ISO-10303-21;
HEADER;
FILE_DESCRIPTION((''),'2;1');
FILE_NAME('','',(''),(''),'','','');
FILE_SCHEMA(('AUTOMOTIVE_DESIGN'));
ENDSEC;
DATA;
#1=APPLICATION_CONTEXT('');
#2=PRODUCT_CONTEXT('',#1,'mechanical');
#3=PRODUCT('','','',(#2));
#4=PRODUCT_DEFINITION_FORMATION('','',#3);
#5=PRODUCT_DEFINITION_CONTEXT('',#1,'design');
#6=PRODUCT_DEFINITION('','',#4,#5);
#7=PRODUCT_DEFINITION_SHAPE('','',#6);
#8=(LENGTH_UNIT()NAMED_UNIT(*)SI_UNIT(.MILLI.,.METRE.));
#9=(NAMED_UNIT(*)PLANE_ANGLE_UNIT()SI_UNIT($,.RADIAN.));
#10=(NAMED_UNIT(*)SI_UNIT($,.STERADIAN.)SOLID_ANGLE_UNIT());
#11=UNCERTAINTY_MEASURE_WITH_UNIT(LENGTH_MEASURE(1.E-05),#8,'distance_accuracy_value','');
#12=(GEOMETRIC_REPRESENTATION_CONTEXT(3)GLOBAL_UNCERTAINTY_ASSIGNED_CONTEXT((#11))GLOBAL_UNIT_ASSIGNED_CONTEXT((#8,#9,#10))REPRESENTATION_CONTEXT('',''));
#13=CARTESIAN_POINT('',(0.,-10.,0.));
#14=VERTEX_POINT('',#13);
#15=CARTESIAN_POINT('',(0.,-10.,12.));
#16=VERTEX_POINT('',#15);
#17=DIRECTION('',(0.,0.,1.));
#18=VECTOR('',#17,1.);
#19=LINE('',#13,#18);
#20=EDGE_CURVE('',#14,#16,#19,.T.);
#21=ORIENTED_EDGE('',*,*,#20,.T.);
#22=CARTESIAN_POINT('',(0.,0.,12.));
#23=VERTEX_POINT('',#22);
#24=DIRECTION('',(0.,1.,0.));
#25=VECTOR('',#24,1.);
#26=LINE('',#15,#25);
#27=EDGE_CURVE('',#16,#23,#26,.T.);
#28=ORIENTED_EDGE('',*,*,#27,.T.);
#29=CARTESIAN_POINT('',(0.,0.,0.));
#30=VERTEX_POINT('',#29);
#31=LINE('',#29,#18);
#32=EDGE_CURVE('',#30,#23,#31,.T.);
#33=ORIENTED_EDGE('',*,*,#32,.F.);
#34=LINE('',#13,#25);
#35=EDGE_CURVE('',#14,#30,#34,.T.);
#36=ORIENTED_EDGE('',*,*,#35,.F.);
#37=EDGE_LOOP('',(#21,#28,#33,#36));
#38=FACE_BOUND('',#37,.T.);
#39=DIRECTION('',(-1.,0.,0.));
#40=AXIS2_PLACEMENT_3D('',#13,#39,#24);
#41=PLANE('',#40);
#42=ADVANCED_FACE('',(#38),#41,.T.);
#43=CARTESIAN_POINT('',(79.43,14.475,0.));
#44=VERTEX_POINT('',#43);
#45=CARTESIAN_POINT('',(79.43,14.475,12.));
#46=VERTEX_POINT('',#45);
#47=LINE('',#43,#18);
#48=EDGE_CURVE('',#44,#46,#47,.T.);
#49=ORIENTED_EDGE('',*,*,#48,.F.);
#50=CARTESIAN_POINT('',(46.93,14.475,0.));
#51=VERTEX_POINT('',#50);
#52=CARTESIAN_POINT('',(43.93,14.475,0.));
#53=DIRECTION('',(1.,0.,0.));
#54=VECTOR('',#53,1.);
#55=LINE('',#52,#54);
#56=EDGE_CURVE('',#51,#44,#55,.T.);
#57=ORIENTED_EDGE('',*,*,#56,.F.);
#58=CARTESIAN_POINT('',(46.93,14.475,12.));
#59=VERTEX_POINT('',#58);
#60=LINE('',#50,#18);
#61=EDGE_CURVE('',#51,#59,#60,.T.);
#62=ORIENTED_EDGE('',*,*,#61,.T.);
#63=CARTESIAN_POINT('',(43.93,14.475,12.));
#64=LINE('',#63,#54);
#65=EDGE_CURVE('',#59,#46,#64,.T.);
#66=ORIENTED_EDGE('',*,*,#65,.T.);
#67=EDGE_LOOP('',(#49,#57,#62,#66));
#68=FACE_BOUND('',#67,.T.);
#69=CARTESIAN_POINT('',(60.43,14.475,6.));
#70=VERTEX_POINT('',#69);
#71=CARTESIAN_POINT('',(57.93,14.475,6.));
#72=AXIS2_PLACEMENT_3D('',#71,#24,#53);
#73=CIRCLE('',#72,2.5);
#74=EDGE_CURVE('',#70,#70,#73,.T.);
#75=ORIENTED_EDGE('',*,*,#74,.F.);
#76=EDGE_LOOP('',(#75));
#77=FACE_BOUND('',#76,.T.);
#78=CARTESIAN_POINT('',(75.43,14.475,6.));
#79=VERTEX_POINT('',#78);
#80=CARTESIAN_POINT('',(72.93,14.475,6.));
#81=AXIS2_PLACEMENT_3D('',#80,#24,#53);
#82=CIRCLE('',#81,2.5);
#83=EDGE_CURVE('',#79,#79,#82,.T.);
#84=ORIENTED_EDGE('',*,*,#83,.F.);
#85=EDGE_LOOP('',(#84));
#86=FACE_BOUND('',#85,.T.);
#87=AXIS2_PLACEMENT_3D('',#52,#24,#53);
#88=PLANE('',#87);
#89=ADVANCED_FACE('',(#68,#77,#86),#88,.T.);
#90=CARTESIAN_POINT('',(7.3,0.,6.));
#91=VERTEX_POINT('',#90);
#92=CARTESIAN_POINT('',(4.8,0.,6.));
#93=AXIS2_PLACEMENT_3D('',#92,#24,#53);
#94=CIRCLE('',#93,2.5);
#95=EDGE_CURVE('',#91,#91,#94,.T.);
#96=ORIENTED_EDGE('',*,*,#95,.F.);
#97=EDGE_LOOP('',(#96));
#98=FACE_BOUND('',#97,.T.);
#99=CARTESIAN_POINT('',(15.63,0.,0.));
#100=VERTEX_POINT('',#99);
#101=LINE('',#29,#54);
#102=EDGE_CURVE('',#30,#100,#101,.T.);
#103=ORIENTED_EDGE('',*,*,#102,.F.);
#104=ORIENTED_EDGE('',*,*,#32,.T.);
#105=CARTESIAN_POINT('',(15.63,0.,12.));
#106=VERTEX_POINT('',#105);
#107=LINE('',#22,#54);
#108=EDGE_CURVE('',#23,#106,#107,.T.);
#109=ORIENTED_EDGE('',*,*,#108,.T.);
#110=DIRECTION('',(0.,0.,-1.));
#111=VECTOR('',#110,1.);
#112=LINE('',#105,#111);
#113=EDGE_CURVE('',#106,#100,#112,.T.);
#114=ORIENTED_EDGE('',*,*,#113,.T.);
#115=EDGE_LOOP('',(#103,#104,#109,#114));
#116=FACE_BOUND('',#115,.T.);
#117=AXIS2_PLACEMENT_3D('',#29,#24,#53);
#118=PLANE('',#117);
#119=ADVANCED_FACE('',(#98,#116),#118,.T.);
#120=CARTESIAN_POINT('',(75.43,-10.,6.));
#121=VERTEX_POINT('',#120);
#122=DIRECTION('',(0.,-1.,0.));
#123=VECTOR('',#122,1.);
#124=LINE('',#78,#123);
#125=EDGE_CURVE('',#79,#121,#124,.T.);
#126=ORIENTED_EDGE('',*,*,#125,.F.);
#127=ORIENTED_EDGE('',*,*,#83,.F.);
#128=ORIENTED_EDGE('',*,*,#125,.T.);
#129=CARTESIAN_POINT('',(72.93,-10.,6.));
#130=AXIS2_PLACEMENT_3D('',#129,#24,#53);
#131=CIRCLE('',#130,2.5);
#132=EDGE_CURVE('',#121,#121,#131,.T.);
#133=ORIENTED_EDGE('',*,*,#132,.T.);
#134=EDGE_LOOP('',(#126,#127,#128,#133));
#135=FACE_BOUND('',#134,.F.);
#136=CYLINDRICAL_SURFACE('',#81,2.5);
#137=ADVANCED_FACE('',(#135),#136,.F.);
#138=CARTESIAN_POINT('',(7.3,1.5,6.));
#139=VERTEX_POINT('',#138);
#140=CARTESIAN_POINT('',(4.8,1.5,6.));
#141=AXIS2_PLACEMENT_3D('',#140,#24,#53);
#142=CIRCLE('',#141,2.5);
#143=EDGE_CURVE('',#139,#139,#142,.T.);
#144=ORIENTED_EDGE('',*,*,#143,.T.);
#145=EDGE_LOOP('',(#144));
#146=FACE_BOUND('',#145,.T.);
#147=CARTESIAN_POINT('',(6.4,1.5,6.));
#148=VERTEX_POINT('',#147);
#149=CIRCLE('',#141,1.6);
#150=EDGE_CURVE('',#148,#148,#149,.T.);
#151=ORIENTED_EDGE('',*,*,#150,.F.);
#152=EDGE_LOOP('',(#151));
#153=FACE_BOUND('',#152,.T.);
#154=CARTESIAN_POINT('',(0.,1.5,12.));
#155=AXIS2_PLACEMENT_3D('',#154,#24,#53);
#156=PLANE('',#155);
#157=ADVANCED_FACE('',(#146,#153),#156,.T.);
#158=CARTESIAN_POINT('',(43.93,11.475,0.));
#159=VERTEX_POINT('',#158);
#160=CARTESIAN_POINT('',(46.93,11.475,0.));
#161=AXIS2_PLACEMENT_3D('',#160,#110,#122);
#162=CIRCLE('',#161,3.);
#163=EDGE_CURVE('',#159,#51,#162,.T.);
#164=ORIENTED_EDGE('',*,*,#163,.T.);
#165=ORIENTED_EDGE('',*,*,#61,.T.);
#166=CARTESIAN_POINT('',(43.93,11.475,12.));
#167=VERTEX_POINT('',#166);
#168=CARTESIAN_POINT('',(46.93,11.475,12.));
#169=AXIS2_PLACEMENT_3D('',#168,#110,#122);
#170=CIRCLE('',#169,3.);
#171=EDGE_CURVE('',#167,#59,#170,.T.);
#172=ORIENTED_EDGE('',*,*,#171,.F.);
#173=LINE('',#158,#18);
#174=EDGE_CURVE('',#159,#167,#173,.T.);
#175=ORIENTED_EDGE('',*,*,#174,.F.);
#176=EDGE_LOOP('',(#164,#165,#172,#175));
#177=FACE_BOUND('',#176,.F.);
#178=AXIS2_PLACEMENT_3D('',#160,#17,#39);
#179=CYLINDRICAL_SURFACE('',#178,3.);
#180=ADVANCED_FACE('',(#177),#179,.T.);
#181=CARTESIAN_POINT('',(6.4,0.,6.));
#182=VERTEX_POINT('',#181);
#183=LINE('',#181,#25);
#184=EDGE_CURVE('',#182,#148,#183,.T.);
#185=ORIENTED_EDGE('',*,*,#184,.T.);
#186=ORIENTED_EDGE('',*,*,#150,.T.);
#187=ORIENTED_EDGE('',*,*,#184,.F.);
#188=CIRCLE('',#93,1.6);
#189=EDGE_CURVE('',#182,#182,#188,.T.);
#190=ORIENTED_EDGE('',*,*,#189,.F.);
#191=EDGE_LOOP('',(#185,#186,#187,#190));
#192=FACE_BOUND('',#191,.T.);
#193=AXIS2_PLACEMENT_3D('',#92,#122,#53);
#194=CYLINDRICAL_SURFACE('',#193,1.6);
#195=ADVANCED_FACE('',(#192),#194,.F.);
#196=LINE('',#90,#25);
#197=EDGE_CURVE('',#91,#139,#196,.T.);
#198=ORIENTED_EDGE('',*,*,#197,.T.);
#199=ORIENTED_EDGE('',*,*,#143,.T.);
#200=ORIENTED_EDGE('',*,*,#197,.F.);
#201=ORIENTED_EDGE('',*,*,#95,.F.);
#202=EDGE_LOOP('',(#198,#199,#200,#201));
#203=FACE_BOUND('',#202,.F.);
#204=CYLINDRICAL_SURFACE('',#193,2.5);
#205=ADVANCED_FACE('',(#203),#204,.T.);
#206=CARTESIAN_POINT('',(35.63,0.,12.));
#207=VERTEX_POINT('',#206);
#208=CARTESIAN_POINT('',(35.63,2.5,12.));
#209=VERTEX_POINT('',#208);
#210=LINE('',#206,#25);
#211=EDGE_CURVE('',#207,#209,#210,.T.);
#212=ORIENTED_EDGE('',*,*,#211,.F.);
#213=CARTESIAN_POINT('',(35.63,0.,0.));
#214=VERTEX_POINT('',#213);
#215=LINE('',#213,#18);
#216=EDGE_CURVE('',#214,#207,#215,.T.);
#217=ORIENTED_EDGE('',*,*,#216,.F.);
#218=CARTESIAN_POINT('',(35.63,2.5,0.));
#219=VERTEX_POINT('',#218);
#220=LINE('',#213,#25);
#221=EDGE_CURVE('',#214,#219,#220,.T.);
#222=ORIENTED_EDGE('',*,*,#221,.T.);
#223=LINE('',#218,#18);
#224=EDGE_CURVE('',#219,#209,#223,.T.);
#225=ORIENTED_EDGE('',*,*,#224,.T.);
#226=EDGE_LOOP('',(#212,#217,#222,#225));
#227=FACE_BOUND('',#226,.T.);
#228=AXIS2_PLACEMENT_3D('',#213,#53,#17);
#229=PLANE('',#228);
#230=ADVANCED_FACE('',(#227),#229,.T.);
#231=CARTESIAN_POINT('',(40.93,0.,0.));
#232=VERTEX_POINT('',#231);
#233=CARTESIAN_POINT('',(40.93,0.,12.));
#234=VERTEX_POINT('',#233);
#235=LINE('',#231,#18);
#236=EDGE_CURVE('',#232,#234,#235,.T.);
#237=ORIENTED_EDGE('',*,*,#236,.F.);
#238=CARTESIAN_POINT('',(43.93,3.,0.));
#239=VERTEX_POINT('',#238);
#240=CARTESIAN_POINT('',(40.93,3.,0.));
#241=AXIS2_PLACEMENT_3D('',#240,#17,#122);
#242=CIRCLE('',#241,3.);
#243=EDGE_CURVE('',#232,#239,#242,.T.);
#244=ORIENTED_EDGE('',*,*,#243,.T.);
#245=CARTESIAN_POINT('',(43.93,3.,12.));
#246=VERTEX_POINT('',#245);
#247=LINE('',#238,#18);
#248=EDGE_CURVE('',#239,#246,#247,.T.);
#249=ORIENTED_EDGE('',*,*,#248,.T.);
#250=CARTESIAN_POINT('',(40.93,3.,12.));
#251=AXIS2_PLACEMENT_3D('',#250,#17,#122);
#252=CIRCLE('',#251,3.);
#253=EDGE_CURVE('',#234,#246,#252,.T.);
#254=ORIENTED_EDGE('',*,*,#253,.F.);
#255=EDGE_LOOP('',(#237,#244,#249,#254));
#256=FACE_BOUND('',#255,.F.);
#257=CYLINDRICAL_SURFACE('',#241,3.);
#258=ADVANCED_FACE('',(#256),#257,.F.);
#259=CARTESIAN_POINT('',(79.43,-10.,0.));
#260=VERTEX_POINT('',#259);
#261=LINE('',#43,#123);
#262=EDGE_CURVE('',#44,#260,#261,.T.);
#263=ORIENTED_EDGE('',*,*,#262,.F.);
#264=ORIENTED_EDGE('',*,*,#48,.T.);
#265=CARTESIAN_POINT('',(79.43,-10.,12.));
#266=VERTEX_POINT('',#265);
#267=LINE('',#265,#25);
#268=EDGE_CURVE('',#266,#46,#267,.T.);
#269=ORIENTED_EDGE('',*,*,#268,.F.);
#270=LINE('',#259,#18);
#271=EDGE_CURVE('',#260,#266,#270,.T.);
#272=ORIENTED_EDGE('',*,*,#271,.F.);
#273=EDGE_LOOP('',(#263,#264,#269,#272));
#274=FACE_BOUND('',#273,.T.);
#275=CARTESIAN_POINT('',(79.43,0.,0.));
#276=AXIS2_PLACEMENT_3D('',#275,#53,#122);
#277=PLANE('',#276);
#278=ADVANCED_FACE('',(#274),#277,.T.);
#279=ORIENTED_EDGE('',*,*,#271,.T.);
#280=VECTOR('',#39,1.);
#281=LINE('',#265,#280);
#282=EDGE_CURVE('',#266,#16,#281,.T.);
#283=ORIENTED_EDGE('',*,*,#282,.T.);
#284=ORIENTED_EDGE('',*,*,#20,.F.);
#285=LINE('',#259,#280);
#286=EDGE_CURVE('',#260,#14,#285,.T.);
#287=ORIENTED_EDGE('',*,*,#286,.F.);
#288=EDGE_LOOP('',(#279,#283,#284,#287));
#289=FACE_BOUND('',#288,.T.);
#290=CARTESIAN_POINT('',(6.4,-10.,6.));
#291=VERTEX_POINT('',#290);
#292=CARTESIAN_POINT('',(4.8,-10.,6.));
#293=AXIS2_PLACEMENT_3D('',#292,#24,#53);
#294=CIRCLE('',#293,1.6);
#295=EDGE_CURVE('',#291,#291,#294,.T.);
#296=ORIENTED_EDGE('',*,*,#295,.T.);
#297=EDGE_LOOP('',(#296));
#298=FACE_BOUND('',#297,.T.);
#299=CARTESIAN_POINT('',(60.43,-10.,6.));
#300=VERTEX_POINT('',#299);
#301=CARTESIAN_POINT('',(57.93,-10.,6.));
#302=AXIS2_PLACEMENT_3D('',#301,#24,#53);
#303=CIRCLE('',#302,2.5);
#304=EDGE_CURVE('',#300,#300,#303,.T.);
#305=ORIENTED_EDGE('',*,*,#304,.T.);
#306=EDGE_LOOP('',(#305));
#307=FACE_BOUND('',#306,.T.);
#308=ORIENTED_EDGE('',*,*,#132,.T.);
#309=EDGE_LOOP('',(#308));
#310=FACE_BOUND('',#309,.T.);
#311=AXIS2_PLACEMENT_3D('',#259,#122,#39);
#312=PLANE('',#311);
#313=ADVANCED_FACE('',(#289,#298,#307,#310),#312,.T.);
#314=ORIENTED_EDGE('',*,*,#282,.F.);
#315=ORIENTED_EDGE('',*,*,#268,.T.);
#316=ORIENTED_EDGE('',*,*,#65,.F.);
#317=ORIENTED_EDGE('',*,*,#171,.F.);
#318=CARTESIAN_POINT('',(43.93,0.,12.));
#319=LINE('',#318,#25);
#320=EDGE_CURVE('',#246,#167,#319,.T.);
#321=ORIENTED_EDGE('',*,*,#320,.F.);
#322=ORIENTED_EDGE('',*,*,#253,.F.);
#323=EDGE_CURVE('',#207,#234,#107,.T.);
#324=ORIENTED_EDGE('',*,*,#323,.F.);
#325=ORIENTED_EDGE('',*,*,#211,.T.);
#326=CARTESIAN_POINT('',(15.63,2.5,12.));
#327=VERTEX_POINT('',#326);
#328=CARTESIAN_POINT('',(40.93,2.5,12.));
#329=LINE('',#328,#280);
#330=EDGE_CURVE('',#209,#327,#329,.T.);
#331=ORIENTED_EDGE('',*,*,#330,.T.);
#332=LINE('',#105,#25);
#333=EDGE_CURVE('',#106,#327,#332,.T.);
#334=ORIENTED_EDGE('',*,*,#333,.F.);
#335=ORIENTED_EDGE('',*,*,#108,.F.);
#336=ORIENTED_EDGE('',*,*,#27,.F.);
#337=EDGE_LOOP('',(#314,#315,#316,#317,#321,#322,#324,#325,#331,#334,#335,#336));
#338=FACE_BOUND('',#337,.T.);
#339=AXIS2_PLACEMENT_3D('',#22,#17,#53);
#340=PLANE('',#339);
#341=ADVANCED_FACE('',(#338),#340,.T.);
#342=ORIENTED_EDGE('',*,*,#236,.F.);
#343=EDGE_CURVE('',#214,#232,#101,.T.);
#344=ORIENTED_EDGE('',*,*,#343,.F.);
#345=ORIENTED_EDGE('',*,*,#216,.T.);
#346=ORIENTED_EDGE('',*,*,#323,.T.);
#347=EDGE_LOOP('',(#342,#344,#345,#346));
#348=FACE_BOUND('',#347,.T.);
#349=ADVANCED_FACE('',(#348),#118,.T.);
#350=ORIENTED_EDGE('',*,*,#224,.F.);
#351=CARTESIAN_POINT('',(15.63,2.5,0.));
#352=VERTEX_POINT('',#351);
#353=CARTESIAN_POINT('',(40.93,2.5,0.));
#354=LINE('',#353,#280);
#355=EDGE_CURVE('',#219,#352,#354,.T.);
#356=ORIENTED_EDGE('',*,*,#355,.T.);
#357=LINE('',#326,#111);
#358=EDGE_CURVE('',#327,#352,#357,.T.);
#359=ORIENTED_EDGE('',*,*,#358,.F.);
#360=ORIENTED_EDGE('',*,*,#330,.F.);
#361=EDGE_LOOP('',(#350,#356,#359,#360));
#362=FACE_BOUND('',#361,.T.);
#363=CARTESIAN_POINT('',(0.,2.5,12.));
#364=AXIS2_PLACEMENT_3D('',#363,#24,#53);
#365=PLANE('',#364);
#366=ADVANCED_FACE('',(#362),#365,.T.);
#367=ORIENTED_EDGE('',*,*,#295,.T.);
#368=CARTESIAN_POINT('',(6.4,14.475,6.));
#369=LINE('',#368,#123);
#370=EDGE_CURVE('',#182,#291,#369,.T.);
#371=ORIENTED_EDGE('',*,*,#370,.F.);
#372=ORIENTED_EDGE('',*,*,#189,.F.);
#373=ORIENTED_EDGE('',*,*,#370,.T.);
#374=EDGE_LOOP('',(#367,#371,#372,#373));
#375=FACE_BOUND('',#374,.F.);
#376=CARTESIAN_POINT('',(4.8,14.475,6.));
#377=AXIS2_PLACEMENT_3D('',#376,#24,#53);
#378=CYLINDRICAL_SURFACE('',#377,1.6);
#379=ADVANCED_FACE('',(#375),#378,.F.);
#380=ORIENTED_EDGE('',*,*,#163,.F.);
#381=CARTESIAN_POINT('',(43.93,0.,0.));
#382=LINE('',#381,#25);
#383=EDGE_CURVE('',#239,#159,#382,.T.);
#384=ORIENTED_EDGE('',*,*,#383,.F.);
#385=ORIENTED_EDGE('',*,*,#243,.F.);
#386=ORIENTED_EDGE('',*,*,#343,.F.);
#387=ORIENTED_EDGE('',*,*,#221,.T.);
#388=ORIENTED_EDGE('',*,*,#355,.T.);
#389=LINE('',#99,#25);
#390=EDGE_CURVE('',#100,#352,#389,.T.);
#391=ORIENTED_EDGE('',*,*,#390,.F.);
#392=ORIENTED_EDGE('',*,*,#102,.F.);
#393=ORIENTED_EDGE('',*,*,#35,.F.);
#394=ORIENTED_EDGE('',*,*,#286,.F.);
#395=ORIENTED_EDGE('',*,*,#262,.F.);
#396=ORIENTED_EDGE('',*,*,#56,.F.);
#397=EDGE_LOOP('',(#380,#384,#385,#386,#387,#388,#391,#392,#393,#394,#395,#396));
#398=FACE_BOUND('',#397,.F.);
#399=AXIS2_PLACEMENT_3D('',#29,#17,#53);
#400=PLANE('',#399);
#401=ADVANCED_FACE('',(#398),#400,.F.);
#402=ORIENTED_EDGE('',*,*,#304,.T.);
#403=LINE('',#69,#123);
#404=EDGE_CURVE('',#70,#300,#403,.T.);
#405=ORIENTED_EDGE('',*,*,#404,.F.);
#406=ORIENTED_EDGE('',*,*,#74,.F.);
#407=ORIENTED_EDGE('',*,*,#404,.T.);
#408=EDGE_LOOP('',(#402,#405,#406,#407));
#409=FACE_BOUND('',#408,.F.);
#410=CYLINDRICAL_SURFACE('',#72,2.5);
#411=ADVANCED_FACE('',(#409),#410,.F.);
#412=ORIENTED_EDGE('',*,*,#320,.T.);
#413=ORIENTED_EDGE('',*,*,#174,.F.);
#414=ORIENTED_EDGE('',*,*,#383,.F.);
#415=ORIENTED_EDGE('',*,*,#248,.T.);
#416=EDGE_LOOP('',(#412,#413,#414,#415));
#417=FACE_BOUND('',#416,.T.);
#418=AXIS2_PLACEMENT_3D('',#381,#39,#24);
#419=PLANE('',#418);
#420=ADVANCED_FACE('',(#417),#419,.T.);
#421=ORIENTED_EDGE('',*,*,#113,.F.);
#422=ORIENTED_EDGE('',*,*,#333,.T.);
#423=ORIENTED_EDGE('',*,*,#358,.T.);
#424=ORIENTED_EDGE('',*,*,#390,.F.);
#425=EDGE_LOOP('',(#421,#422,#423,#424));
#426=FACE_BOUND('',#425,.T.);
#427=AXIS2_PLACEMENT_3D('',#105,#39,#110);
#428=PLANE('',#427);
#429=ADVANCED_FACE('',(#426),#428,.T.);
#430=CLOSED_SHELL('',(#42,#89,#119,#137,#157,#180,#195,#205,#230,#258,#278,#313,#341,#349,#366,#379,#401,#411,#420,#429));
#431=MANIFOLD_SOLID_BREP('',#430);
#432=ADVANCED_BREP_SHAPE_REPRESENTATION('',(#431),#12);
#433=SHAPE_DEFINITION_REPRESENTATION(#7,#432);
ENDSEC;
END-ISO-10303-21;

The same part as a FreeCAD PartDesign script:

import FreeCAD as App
import Part
import Sketcher
from FreeCAD import Vector
Q = App.Units.Quantity


def edges_at(feature, points):
    """Names of the edges that pass closest to the given points."""
    edges = feature.Shape.Edges
    near = lambda p: min(range(len(edges)), key=lambda i: edges[i].distToShape(Part.Vertex(*p))[0])
    return sorted({f"Edge{near(p) + 1}" for p in points})

doc = App.newDocument("Part")
params = doc.addObject("Spreadsheet::Sheet", "Params")
for row, (alias, value) in enumerate([
    ("sketch1_height", "10 mm"),
    ("sketch1_width", "35.5 mm"),
    ("sketch1_width2", "43.93 mm"),
    ("pad1_length", "12 mm"),
    ("sketch2_diameter", "5 mm"),
    ("sketch2_diameter2", "3.2 mm"),
    ("pocket1_length", "24.475 mm"),
    ("fillet_radius", "3 mm"),
    ("sketch3_diameter", "5 mm"),
    ("sketch3_diameter2", "3.2 mm"),
    ("pad2_length", "1.5 mm"),
    ("sketch4_width", "20 mm"),
    ("sketch4_height", "12 mm"),
    ("pad3_length", "2.5 mm"),
], start=1):
    params.set(f"A{row}", alias)
    params.set(f"B{row}", "=" + value)
    params.setAlias(f"B{row}", alias)

body = doc.addObject("PartDesign::Body", "Body")

# Sketch on XY plane
sketch1 = body.newObject("Sketcher::SketchObject", "Sketch")
sketch1.AttachmentSupport = (doc.getObject("XY_Plane"), [""])
sketch1.MapMode = "FlatFace"
sketch1.addGeometry([
    Part.LineSegment(Vector(43.93, 0, 0), Vector(0, 0, 0)),  # 0
    Part.LineSegment(Vector(0, 0, 0), Vector(0, -10, 0)),  # 1
    Part.LineSegment(Vector(0, -10, 0), Vector(79.43, -10, 0)),  # 2
    Part.LineSegment(Vector(79.43, -10, 0), Vector(79.43, 14.475, 0)),  # 3
    Part.LineSegment(Vector(79.43, 14.475, 0), Vector(43.93, 14.475, 0)),  # 4
    Part.LineSegment(Vector(43.93, 14.475, 0), Vector(43.93, 0, 0)),  # 5
], False)
sketch1.addConstraint([
    Sketcher.Constraint("Coincident", 0, 2, 1, 1),
    Sketcher.Constraint("Coincident", 1, 2, 2, 1),
    Sketcher.Constraint("Coincident", 2, 2, 3, 1),
    Sketcher.Constraint("Coincident", 3, 2, 4, 1),
    Sketcher.Constraint("Coincident", 4, 2, 5, 1),
    Sketcher.Constraint("Coincident", 5, 2, 0, 1),
    Sketcher.Constraint("Horizontal", 0),
    Sketcher.Constraint("Vertical", 1),
    Sketcher.Constraint("Horizontal", 2),
    Sketcher.Constraint("Vertical", 3),
    Sketcher.Constraint("Horizontal", 4),
    Sketcher.Constraint("Vertical", 5),
    Sketcher.Constraint("Coincident", 0, 2, -1, 1),
    Sketcher.Constraint("DistanceY", 1, 2, 1, 1, Q("10 mm")),
    Sketcher.Constraint("DistanceY", 5, 2, 5, 1, Q("14.475 mm")),
    Sketcher.Constraint("DistanceX", 4, 2, 4, 1, Q("35.5 mm")),
    Sketcher.Constraint("DistanceX", 0, 2, 0, 1, Q("43.93 mm")),
])
sketch1.setExpression("Constraints[13]", "Params.sketch1_height")
sketch1.setExpression("Constraints[15]", "Params.sketch1_width")
sketch1.setExpression("Constraints[16]", "Params.sketch1_width2")
pad1 = body.newObject("PartDesign::Pad", "Pad")
pad1.Profile = sketch1
pad1.setExpression("Length", "Params.pad1_length")

# Sketch on XZ plane
sketch2 = body.newObject("Sketcher::SketchObject", "Sketch001")
sketch2.AttachmentSupport = (doc.getObject("XZ_Plane"), [""])
sketch2.MapMode = "FlatFace"
sketch2.AttachmentOffset = App.Placement(Vector(0, 0, -14.475), App.Rotation())
sketch2.addGeometry([
    Part.Circle(Vector(4.8, 6, 0), Vector(0, 0, 1), 1.6),
    Part.Circle(Vector(72.93, 6, 0), Vector(0, 0, 1), 2.5),
    Part.Circle(Vector(57.93, 6, 0), Vector(0, 0, 1), 2.5),
], False)
sketch2.addConstraint([
    Sketcher.Constraint("Equal", 1, 2),
    Sketcher.Constraint("Horizontal", 0, 3, 1, 3),
    Sketcher.Constraint("Horizontal", 1, 3, 2, 3),
    Sketcher.Constraint("Diameter", 1, Q("5 mm")),
    Sketcher.Constraint("Diameter", 0, Q("3.2 mm")),
    Sketcher.Constraint("DistanceY", -1, 1, 0, 3, Q("6 mm")),
    Sketcher.Constraint("DistanceX", 2, 3, 1, 3, Q("15 mm")),
    Sketcher.Constraint("DistanceX", -1, 1, 0, 3, Q("4.8 mm")),
    Sketcher.Constraint("DistanceX", -1, 1, 1, 3, Q("72.93 mm")),
])
sketch2.setExpression("Constraints[3]", "Params.sketch2_diameter")
sketch2.setExpression("Constraints[4]", "Params.sketch2_diameter2")
pocket1 = body.newObject("PartDesign::Pocket", "Pocket")
pocket1.Profile = sketch2
pocket1.setExpression("Length", "Params.pocket1_length")
pocket1.Reversed = True
doc.recompute()

fillet = body.newObject("PartDesign::Fillet", "Fillet")
fillet.Base = (pocket1, edges_at(pocket1, [(43.93, 14.475, 6), (43.93, 0, 6)]))
fillet.setExpression("Radius", "Params.fillet_radius")

# Sketch on XZ plane
sketch3 = body.newObject("Sketcher::SketchObject", "Sketch002")
sketch3.AttachmentSupport = (doc.getObject("XZ_Plane"), [""])
sketch3.MapMode = "FlatFace"
sketch3.addGeometry([
    Part.Circle(Vector(4.8, 6, 0), Vector(0, 0, 1), 2.5),
    Part.Circle(Vector(4.8, 6, 0), Vector(0, 0, 1), 1.6),
], False)
sketch3.addConstraint([
    Sketcher.Constraint("Coincident", 1, 3, 0, 3),
    Sketcher.Constraint("Diameter", 0, Q("5 mm")),
    Sketcher.Constraint("Diameter", 1, Q("3.2 mm")),
    Sketcher.Constraint("DistanceY", -1, 1, 0, 3, Q("6 mm")),
    Sketcher.Constraint("DistanceX", -1, 1, 0, 3, Q("4.8 mm")),
])
sketch3.setExpression("Constraints[1]", "Params.sketch3_diameter")
sketch3.setExpression("Constraints[2]", "Params.sketch3_diameter2")
pad2 = body.newObject("PartDesign::Pad", "Pad001")
pad2.Profile = sketch3
pad2.setExpression("Length", "Params.pad2_length")
pad2.Reversed = True

# Sketch on XZ plane
sketch4 = body.newObject("Sketcher::SketchObject", "Sketch003")
sketch4.AttachmentSupport = (doc.getObject("XZ_Plane"), [""])
sketch4.MapMode = "FlatFace"
sketch4.addGeometry([
    Part.LineSegment(Vector(35.63, 12, 0), Vector(35.63, 0, 0)),
    Part.LineSegment(Vector(35.63, 0, 0), Vector(15.63, 0, 0)),
    Part.LineSegment(Vector(15.63, 0, 0), Vector(15.63, 12, 0)),
    Part.LineSegment(Vector(15.63, 12, 0), Vector(35.63, 12, 0)),
], False)
sketch4.addConstraint([
    Sketcher.Constraint("Coincident", 0, 2, 1, 1),
    Sketcher.Constraint("Coincident", 1, 2, 2, 1),
    Sketcher.Constraint("Coincident", 2, 2, 3, 1),
    Sketcher.Constraint("Coincident", 3, 2, 0, 1),
    Sketcher.Constraint("Vertical", 0),
    Sketcher.Constraint("Horizontal", 1),
    Sketcher.Constraint("Vertical", 2),
    Sketcher.Constraint("Horizontal", 3),
    Sketcher.Constraint("PointOnObject", 0, 2, -1),
    Sketcher.Constraint("DistanceX", 1, 2, 1, 1, Q("20 mm")),
    Sketcher.Constraint("DistanceY", 0, 2, 0, 1, Q("12 mm")),
    Sketcher.Constraint("DistanceX", -1, 1, 0, 2, Q("35.63 mm")),
])
sketch4.setExpression("Constraints[9]", "Params.sketch4_width")
sketch4.setExpression("Constraints[10]", "Params.sketch4_height")
pad3 = body.newObject("PartDesign::Pad", "Pad002")
pad3.Profile = sketch4
pad3.setExpression("Length", "Params.pad3_length")
pad3.Reversed = True

doc.recompute()
